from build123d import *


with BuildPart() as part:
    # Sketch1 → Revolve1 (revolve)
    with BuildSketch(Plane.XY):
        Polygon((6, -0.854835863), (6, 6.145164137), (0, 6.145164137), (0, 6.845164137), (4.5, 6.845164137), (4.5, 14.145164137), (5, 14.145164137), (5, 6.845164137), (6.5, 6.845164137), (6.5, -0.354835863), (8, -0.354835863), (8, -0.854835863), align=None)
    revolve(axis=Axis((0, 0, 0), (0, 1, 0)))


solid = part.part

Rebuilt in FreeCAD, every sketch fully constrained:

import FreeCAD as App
import Part
import Sketcher
Q = App.Units.Quantity

doc = App.newDocument("Part")
body = doc.addObject("PartDesign::Body", "Body")

# Sketch on XY plane
sketch1 = body.newObject("Sketcher::SketchObject", "Sketch")
sketch1.AttachmentSupport = (doc.getObject("XY_Plane"), [""])
sketch1.MapMode = "FlatFace"
sketch1.addGeometry(Part.LineSegment(App.Vector(6, 6.1, 0), App.Vector(6, -0.9, 0)), False)
sketch1.addGeometry(Part.LineSegment(App.Vector(6, -0.9, 0), App.Vector(8, -0.9, 0)), False)
sketch1.addGeometry(Part.LineSegment(App.Vector(8, -0.9, 0), App.Vector(8, -0.4, 0)), False)
sketch1.addGeometry(Part.LineSegment(App.Vector(8, -0.4, 0), App.Vector(6.5, -0.4, 0)), False)
sketch1.addGeometry(Part.LineSegment(App.Vector(6.5, -0.4, 0), App.Vector(6.5, 6.8, 0)), False)
sketch1.addGeometry(Part.LineSegment(App.Vector(6.5, 6.8, 0), App.Vector(5, 6.8, 0)), False)
sketch1.addGeometry(Part.LineSegment(App.Vector(5, 6.8, 0), App.Vector(5, 14.1, 0)), False)
sketch1.addGeometry(Part.LineSegment(App.Vector(5, 14.1, 0), App.Vector(4.5, 14.1, 0)), False)
sketch1.addGeometry(Part.LineSegment(App.Vector(4.5, 14.1, 0), App.Vector(4.5, 6.8, 0)), False)
sketch1.addGeometry(Part.LineSegment(App.Vector(4.5, 6.8, 0), App.Vector(0, 6.8, 0)), False)
sketch1.addGeometry(Part.LineSegment(App.Vector(0, 6.8, 0), App.Vector(0, 6.1, 0)), False)
sketch1.addGeometry(Part.LineSegment(App.Vector(0, 6.1, 0), App.Vector(6, 6.1, 0)), False)
sketch1.addConstraint(Sketcher.Constraint("Coincident", 0, 2, 1, 1))
sketch1.addConstraint(Sketcher.Constraint("Coincident", 1, 2, 2, 1))
sketch1.addConstraint(Sketcher.Constraint("Coincident", 2, 2, 3, 1))
sketch1.addConstraint(Sketcher.Constraint("Coincident", 3, 2, 4, 1))
sketch1.addConstraint(Sketcher.Constraint("Coincident", 4, 2, 5, 1))
sketch1.addConstraint(Sketcher.Constraint("Coincident", 5, 2, 6, 1))
sketch1.addConstraint(Sketcher.Constraint("Coincident", 6, 2, 7, 1))
sketch1.addConstraint(Sketcher.Constraint("Coincident", 7, 2, 8, 1))
sketch1.addConstraint(Sketcher.Constraint("Coincident", 8, 2, 9, 1))
sketch1.addConstraint(Sketcher.Constraint("Coincident", 9, 2, 10, 1))
sketch1.addConstraint(Sketcher.Constraint("Coincident", 10, 2, 11, 1))
sketch1.addConstraint(Sketcher.Constraint("Coincident", 11, 2, 0, 1))
sketch1.addConstraint(Sketcher.Constraint("Vertical", 0))
sketch1.addConstraint(Sketcher.Constraint("Horizontal", 1))
sketch1.addConstraint(Sketcher.Constraint("Vertical", 2))
sketch1.addConstraint(Sketcher.Constraint("Horizontal", 3))
sketch1.addConstraint(Sketcher.Constraint("Vertical", 4))
sketch1.addConstraint(Sketcher.Constraint("Horizontal", 5))
sketch1.addConstraint(Sketcher.Constraint("Vertical", 6))
sketch1.addConstraint(Sketcher.Constraint("Horizontal", 7))
sketch1.addConstraint(Sketcher.Constraint("Vertical", 8))
sketch1.addConstraint(Sketcher.Constraint("Horizontal", 9))
sketch1.addConstraint(Sketcher.Constraint("Vertical", 10))
sketch1.addConstraint(Sketcher.Constraint("Horizontal", 11))
sketch1.addConstraint(Sketcher.Constraint("PointOnObject", 9, 2, -2))
sketch1.addConstraint(Sketcher.Constraint("Horizontal", 5, 2, 8, 2))
sketch1.addConstraint(Sketcher.Constraint("Equal", 3, 5))
sketch1.addConstraint(Sketcher.Constraint("Equal", 7, 2))
sketch1.addConstraint(Sketcher.Constraint("DistanceX", 1, 1, 1, 2, Q("2 mm")))
sketch1.addConstraint(Sketcher.Constraint("DistanceX", 11, 1, 11, 2, Q("6 mm")))
sketch1.addConstraint(Sketcher.Constraint("DistanceY", 0, 2, 0, 1, Q("7 mm")))
sketch1.addConstraint(Sketcher.Constraint("DistanceX", 3, 2, 3, 1, Q("1.5 mm")))
sketch1.addConstraint(Sketcher.Constraint("DistanceX", 7, 2, 7, 1, Q("0.5 mm")))
sketch1.addConstraint(Sketcher.Constraint("DistanceY", 4, 1, 4, 2, Q("7.2 mm")))
sketch1.addConstraint(Sketcher.Constraint("DistanceY", 6, 1, 6, 2, Q("7.3 mm")))
sketch1.addConstraint(Sketcher.Constraint("DistanceY", 0, 2, -1, 1, Q("0.854836 mm")))
revolution = body.newObject("PartDesign::Revolution", "Revolution")
revolution.Profile = sketch1
revolution.ReferenceAxis = (sketch1, ["V_Axis"])
revolution.Angle = 360

doc.recompute()
